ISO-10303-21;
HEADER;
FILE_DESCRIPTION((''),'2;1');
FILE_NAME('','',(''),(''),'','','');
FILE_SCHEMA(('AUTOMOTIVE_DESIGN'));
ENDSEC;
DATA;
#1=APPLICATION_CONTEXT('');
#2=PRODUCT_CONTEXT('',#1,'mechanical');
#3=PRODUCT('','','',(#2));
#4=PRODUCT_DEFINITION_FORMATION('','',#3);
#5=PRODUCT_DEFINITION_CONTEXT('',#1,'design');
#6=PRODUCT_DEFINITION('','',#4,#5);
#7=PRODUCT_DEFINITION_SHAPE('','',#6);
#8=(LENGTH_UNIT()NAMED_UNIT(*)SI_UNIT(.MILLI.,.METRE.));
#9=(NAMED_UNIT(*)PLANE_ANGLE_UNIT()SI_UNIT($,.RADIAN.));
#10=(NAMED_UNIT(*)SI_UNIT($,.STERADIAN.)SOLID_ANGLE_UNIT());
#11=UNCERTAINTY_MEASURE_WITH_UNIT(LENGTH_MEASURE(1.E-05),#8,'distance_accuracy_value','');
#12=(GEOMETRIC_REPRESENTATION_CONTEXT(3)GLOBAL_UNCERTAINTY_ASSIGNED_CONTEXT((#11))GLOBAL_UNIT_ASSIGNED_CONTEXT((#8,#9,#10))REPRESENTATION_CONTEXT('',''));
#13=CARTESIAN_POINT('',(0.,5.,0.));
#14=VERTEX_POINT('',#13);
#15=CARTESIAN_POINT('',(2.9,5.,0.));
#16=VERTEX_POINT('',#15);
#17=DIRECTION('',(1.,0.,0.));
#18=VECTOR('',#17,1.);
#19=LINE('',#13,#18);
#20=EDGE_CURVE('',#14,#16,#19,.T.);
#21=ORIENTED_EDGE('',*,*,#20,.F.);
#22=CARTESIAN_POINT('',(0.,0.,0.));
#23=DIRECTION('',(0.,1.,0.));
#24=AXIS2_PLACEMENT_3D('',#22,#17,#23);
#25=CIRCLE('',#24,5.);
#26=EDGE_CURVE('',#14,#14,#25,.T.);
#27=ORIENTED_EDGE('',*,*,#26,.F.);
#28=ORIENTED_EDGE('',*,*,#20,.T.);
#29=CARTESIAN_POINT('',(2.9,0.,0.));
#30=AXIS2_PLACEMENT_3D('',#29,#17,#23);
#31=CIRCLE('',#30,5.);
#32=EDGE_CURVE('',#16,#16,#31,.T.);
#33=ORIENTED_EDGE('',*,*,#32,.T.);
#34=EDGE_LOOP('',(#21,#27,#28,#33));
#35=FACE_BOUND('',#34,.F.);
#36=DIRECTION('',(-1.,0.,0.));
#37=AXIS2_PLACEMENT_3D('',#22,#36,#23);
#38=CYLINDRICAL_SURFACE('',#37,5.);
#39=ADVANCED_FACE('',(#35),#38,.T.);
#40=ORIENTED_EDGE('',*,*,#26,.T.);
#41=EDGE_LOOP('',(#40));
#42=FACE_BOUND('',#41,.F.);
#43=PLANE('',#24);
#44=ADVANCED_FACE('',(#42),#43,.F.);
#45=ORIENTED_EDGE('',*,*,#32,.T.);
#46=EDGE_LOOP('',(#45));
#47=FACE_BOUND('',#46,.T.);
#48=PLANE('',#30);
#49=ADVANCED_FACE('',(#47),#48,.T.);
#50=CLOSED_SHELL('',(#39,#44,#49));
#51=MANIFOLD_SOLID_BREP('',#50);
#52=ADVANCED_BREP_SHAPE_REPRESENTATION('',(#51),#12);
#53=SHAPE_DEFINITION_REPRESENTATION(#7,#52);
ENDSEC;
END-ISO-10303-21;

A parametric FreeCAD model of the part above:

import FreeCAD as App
import Part
import Sketcher
Q = App.Units.Quantity

doc = App.newDocument("Part")
body = doc.addObject("PartDesign::Body", "Body")

sketch1 = body.newObject("Sketcher::SketchObject", "Sketch")
sketch1.AttachmentSupport = (doc.getObject("YZ_Plane"), [""])
sketch1.MapMode = "FlatFace"
sketch1.addGeometry(Part.Circle(App.Vector(0, 0, 0), App.Vector(0, 0, 1), 5), False)
sketch1.addConstraint(Sketcher.Constraint("Coincident", 0, 3, -1, 1))
sketch1.addConstraint(Sketcher.Constraint("Diameter", 0, Q("10 mm")))
pad1 = body.newObject("PartDesign::Pad", "Pad")
pad1.Profile = sketch1
pad1.Length = 2.9

doc.recompute()
